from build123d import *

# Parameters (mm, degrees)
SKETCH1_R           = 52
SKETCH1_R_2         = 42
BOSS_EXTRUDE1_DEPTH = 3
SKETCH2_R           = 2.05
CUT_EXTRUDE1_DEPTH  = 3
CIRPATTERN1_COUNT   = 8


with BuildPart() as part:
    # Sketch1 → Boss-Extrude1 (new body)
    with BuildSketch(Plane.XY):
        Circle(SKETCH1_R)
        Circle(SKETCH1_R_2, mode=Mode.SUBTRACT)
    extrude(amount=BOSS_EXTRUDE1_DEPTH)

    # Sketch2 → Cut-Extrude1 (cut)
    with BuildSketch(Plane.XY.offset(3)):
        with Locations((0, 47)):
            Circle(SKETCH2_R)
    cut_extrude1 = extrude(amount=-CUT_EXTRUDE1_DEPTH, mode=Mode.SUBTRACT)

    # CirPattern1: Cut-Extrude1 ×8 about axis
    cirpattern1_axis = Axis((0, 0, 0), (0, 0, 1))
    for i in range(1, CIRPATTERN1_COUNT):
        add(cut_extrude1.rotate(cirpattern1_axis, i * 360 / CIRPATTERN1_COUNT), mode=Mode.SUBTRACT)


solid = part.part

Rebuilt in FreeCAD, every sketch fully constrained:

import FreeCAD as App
import Part
import Sketcher

V = App.Vector
Q = App.Units.Quantity

doc = App.newDocument("Part")
body = doc.addObject("PartDesign::Body", "Body")

# Sketch on XY plane
sketch1 = doc.addObject("Sketcher::SketchObject", "Sketch")
body.addObject(sketch1)
sketch1.AttachmentSupport = (doc.XY_Plane, [""])
sketch1.MapMode = "FlatFace"
sketch1.addGeometry([
    Part.Circle(V(0, 0, 0), V(0, 0, 1), 52),
    Part.Circle(V(0, 0, 0), V(0, 0, 1), 42),
], False)
sketch1.addConstraint([
    Sketcher.Constraint("Coincident", 0, 3, -1, 1),
    Sketcher.Constraint("Coincident", 1, 3, -1, 1),
    Sketcher.Constraint("Diameter", 0, Q("104 mm")),
    Sketcher.Constraint("Diameter", 1, Q("84 mm")),
])
pad1 = doc.addObject("PartDesign::Pad", "Pad")
body.addObject(pad1)
pad1.Profile = sketch1
pad1.Length = 3

# Sketch on XY plane
sketch2 = doc.addObject("Sketcher::SketchObject", "Sketch001")
body.addObject(sketch2)
sketch2.AttachmentSupport = (doc.XY_Plane, [""])
sketch2.MapMode = "FlatFace"
sketch2.AttachmentOffset = App.Placement(V(0, 0, 3), App.Rotation())
sketch2.addGeometry(Part.Circle(V(0, 47, 0), V(0, 0, 1), 2), False)
sketch2.addConstraint([
    Sketcher.Constraint("PointOnObject", 0, 3, -2),
    Sketcher.Constraint("Diameter", 0, Q("4.1 mm")),
    Sketcher.Constraint("DistanceY", -1, 1, 0, 3, Q("47 mm")),
])
pocket1 = doc.addObject("PartDesign::Pocket", "Pocket")
body.addObject(pocket1)
pocket1.Profile = sketch2
pocket1.Length = 3
doc.recompute()

polarpattern = doc.addObject("PartDesign::PolarPattern", "PolarPattern")
body.addObject(polarpattern)
polarpattern.Originals = [pocket1]
polarpattern.Axis = (doc.Z_Axis, [""])
polarpattern.Angle = 360
polarpattern.Occurrences = 8
body.Tip = polarpattern

doc.recompute()
